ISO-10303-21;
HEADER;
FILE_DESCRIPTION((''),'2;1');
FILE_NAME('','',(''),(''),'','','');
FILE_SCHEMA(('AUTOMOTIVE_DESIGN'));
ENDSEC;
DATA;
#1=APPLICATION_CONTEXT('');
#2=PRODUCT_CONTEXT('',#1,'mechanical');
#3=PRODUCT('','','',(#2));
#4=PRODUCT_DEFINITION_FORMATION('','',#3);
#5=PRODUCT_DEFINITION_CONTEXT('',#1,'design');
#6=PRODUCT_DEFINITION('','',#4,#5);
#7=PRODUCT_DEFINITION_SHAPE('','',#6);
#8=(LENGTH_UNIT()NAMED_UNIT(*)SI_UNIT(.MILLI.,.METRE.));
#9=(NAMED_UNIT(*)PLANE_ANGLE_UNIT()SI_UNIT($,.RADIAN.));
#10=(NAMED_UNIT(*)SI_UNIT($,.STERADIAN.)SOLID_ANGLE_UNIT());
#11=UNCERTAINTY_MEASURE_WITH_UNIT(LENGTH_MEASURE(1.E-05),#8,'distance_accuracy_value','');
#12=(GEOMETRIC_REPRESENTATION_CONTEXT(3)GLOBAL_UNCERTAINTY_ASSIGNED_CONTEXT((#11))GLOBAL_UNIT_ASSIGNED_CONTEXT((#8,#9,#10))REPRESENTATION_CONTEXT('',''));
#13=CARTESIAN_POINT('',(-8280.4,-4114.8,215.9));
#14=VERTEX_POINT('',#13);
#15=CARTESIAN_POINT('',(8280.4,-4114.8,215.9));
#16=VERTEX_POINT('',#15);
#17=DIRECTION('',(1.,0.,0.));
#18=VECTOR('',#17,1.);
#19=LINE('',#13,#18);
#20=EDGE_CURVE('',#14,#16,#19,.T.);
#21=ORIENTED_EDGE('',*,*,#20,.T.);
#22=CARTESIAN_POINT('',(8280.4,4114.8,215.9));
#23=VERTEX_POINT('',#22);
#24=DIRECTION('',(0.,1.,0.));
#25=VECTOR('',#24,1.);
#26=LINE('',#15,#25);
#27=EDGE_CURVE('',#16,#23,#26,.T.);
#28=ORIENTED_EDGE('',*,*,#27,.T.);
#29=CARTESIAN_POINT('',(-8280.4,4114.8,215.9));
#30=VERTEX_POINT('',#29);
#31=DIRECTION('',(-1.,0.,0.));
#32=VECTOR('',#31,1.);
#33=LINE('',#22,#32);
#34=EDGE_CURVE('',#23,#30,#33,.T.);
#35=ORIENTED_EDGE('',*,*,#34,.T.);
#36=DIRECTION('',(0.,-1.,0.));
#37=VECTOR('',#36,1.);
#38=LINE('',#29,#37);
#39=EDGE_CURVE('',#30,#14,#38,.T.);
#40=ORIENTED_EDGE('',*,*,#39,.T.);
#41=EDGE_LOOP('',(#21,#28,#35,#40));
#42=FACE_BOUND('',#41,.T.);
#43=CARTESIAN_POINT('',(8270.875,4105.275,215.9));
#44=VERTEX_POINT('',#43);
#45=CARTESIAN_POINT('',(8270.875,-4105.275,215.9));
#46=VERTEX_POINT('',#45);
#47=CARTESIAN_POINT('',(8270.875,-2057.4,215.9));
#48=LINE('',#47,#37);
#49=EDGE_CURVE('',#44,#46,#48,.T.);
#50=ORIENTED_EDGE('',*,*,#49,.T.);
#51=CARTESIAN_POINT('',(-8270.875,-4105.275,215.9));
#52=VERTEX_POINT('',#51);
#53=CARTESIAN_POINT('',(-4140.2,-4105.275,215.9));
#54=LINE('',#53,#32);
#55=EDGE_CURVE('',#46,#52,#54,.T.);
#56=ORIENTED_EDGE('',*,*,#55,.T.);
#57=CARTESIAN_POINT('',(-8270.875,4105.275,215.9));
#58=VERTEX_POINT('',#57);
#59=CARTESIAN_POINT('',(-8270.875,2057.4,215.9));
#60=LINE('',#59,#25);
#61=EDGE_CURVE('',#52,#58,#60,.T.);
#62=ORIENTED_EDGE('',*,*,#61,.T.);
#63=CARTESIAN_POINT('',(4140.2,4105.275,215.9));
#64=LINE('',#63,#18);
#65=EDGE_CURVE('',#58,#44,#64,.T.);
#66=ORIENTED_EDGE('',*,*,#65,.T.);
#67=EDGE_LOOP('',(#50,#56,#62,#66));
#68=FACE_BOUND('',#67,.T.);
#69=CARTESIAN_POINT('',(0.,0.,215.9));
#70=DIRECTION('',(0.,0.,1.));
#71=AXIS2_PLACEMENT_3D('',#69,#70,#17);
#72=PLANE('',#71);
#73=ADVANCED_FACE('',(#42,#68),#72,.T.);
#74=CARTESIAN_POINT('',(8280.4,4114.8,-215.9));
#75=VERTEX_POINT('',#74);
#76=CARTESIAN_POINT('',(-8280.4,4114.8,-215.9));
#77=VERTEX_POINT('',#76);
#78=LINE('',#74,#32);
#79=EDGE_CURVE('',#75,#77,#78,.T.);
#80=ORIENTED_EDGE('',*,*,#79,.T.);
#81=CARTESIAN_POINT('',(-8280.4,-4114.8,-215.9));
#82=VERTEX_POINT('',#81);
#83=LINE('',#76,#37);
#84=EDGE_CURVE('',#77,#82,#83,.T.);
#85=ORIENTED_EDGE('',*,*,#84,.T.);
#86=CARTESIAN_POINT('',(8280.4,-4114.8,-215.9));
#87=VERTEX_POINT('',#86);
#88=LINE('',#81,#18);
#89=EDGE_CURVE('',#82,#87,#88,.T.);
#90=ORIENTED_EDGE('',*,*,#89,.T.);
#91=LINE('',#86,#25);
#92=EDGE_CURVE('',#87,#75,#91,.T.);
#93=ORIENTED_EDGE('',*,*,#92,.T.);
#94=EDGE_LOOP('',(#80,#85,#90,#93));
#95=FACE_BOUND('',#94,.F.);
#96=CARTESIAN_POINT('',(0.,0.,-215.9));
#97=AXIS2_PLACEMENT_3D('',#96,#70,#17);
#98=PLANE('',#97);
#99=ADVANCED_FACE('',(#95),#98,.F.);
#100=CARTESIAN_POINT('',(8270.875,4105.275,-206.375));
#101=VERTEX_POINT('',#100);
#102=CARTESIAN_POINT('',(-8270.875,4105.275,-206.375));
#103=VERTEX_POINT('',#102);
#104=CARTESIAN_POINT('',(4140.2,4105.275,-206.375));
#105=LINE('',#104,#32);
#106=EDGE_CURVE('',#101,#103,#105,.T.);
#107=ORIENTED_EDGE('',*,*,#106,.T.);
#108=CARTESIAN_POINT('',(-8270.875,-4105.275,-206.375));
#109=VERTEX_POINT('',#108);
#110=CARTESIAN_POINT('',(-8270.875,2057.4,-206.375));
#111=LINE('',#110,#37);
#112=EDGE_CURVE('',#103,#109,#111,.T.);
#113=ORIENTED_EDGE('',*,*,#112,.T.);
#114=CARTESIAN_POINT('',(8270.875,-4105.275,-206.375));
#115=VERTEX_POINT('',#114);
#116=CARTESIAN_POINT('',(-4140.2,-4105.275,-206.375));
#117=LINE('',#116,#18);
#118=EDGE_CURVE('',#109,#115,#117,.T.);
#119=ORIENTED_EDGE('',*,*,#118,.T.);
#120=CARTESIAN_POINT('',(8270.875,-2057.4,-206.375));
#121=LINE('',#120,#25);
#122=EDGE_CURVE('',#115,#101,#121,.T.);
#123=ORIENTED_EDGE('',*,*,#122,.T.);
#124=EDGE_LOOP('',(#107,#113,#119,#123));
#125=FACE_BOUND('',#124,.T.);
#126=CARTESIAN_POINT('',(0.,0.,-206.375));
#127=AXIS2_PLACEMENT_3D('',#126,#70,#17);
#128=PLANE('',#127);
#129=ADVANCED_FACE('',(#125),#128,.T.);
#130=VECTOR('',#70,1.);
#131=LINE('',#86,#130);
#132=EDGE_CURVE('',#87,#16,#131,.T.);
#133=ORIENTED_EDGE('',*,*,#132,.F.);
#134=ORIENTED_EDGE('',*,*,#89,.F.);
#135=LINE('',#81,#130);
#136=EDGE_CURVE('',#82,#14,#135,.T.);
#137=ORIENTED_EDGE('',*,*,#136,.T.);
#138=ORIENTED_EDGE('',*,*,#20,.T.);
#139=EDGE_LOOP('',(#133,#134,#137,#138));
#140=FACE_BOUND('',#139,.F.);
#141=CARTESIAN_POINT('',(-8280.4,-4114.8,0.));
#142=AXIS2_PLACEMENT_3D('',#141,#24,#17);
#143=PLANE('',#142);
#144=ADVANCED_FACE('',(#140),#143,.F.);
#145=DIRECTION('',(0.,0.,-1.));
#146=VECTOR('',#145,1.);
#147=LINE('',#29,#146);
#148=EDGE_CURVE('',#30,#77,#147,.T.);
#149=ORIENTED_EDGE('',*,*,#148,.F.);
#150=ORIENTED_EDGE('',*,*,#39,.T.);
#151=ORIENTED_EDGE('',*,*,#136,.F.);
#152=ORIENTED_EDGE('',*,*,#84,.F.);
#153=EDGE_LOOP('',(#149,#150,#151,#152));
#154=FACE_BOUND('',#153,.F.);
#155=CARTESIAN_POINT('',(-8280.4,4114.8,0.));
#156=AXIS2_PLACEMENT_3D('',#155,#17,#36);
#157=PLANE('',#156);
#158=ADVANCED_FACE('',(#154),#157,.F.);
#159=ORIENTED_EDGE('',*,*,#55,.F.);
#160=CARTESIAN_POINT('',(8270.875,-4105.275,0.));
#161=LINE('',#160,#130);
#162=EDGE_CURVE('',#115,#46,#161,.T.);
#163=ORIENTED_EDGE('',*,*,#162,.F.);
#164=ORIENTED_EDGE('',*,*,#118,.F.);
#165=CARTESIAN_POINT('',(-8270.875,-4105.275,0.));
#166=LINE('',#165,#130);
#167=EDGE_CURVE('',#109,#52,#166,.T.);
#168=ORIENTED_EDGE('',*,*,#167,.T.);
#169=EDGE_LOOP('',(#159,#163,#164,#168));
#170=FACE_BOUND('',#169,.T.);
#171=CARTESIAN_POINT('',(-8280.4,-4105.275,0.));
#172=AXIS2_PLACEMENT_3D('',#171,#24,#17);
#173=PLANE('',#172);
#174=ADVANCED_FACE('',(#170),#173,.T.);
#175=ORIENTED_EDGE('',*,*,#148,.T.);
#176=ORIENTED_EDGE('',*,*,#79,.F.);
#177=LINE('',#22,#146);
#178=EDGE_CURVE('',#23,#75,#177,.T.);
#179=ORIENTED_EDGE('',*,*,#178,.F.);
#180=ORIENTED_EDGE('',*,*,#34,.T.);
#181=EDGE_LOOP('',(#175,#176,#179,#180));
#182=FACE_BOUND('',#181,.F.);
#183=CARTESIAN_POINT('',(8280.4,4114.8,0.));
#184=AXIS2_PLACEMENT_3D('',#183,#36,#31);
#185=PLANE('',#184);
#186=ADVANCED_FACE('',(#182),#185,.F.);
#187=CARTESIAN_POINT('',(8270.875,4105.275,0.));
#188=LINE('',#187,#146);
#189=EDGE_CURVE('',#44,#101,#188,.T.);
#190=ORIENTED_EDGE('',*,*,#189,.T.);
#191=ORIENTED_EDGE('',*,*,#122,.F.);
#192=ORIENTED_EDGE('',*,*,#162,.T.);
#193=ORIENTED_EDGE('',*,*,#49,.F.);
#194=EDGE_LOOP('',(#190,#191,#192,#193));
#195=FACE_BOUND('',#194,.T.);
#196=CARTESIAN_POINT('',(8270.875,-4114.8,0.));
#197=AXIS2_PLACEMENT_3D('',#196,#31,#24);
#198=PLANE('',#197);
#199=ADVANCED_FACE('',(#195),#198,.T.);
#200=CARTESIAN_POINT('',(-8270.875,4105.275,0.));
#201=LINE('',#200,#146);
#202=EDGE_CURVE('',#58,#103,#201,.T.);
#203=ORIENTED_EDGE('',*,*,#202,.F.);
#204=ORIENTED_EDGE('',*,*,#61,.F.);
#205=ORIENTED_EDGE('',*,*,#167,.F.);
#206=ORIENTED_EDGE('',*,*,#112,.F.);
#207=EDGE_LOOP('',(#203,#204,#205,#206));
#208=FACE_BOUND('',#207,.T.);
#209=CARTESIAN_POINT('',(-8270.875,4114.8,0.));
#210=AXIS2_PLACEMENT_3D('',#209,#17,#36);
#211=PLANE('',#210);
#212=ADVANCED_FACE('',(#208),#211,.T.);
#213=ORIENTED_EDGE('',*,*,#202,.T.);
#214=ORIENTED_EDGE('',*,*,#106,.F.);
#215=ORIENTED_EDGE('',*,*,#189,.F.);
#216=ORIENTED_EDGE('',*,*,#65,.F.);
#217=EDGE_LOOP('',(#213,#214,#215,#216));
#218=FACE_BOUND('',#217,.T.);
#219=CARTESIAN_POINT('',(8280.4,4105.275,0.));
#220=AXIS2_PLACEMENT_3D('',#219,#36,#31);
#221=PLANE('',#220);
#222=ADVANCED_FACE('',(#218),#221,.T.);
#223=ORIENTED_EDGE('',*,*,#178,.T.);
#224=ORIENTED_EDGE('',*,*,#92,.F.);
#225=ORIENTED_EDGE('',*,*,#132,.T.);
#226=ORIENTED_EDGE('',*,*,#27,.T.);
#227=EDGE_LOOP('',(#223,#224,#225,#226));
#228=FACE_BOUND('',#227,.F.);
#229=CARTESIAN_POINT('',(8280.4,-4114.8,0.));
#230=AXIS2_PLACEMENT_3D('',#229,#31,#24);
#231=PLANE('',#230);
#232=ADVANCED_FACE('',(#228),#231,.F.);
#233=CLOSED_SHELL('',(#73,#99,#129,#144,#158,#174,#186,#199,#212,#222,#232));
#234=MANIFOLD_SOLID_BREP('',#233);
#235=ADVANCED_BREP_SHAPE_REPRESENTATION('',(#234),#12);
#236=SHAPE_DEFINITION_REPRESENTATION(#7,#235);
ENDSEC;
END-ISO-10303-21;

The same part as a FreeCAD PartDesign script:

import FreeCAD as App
import Part
import Sketcher
from FreeCAD import Vector
Q = App.Units.Quantity


def faces_at(feature, points):
    """Names of the faces that lie closest to the given points."""
    faces = feature.Shape.Faces
    near = lambda p: min(range(len(faces)), key=lambda i: faces[i].distToShape(Part.Vertex(*p))[0])
    return sorted({f"Face{near(p) + 1}" for p in points})


def add_polygon(sketch, points):
    """Adds a closed chain of lines whose ends are joined by coincident constraints."""
    first, n = sketch.GeometryCount, len(points)
    for a, b in zip(points, points[1:] + points[:1]):
        sketch.addGeometry(Part.LineSegment(App.Vector(*a, 0), App.Vector(*b, 0)), False)
    for i in range(n):
        sketch.addConstraint(Sketcher.Constraint("Coincident", first + i, 2, first + (i + 1) % n, 1))

doc = App.newDocument("Part")
body = doc.addObject("PartDesign::Body", "Body")

sketch1 = doc.addObject("Sketcher::SketchObject", "Sketch")
body.addObject(sketch1)
sketch1.AttachmentSupport = (doc.XY_Plane, [""])
sketch1.MapMode = "FlatFace"
add_polygon(sketch1, [(8280.4, 4114.8), (-8280.4, 4114.8), (-8280.4, -4114.8), (8280.4, -4114.8)])
sketch1.addConstraint(Sketcher.Constraint("Horizontal", 0))
sketch1.addConstraint(Sketcher.Constraint("Vertical", 1))
sketch1.addConstraint(Sketcher.Constraint("Horizontal", 2))
sketch1.addConstraint(Sketcher.Constraint("Vertical", 3))
sketch1.addConstraint(Sketcher.Constraint("Symmetric", 0, 2, 2, 2, -1, 1))
sketch1.addConstraint(Sketcher.Constraint("DistanceX", 0, 2, 0, 1, Q("652 in")))
sketch1.addConstraint(Sketcher.Constraint("DistanceY", 1, 2, 1, 1, Q("324 in")))
pad1 = doc.addObject("PartDesign::Pad", "Pad")
body.addObject(pad1)
pad1.Profile = sketch1
pad1.Length = Q("17 in")
pad1.Midplane = True
doc.recompute()

thickness = doc.addObject("PartDesign::Thickness", "Thickness")
body.addObject(thickness)
thickness.Base = (pad1, faces_at(pad1, [(-5685.875, -2660.904, 215.9)]))
thickness.Value = Q("0.375 in")
thickness.Reversed = True
thickness.Join = "Intersection"

doc.recompute()
